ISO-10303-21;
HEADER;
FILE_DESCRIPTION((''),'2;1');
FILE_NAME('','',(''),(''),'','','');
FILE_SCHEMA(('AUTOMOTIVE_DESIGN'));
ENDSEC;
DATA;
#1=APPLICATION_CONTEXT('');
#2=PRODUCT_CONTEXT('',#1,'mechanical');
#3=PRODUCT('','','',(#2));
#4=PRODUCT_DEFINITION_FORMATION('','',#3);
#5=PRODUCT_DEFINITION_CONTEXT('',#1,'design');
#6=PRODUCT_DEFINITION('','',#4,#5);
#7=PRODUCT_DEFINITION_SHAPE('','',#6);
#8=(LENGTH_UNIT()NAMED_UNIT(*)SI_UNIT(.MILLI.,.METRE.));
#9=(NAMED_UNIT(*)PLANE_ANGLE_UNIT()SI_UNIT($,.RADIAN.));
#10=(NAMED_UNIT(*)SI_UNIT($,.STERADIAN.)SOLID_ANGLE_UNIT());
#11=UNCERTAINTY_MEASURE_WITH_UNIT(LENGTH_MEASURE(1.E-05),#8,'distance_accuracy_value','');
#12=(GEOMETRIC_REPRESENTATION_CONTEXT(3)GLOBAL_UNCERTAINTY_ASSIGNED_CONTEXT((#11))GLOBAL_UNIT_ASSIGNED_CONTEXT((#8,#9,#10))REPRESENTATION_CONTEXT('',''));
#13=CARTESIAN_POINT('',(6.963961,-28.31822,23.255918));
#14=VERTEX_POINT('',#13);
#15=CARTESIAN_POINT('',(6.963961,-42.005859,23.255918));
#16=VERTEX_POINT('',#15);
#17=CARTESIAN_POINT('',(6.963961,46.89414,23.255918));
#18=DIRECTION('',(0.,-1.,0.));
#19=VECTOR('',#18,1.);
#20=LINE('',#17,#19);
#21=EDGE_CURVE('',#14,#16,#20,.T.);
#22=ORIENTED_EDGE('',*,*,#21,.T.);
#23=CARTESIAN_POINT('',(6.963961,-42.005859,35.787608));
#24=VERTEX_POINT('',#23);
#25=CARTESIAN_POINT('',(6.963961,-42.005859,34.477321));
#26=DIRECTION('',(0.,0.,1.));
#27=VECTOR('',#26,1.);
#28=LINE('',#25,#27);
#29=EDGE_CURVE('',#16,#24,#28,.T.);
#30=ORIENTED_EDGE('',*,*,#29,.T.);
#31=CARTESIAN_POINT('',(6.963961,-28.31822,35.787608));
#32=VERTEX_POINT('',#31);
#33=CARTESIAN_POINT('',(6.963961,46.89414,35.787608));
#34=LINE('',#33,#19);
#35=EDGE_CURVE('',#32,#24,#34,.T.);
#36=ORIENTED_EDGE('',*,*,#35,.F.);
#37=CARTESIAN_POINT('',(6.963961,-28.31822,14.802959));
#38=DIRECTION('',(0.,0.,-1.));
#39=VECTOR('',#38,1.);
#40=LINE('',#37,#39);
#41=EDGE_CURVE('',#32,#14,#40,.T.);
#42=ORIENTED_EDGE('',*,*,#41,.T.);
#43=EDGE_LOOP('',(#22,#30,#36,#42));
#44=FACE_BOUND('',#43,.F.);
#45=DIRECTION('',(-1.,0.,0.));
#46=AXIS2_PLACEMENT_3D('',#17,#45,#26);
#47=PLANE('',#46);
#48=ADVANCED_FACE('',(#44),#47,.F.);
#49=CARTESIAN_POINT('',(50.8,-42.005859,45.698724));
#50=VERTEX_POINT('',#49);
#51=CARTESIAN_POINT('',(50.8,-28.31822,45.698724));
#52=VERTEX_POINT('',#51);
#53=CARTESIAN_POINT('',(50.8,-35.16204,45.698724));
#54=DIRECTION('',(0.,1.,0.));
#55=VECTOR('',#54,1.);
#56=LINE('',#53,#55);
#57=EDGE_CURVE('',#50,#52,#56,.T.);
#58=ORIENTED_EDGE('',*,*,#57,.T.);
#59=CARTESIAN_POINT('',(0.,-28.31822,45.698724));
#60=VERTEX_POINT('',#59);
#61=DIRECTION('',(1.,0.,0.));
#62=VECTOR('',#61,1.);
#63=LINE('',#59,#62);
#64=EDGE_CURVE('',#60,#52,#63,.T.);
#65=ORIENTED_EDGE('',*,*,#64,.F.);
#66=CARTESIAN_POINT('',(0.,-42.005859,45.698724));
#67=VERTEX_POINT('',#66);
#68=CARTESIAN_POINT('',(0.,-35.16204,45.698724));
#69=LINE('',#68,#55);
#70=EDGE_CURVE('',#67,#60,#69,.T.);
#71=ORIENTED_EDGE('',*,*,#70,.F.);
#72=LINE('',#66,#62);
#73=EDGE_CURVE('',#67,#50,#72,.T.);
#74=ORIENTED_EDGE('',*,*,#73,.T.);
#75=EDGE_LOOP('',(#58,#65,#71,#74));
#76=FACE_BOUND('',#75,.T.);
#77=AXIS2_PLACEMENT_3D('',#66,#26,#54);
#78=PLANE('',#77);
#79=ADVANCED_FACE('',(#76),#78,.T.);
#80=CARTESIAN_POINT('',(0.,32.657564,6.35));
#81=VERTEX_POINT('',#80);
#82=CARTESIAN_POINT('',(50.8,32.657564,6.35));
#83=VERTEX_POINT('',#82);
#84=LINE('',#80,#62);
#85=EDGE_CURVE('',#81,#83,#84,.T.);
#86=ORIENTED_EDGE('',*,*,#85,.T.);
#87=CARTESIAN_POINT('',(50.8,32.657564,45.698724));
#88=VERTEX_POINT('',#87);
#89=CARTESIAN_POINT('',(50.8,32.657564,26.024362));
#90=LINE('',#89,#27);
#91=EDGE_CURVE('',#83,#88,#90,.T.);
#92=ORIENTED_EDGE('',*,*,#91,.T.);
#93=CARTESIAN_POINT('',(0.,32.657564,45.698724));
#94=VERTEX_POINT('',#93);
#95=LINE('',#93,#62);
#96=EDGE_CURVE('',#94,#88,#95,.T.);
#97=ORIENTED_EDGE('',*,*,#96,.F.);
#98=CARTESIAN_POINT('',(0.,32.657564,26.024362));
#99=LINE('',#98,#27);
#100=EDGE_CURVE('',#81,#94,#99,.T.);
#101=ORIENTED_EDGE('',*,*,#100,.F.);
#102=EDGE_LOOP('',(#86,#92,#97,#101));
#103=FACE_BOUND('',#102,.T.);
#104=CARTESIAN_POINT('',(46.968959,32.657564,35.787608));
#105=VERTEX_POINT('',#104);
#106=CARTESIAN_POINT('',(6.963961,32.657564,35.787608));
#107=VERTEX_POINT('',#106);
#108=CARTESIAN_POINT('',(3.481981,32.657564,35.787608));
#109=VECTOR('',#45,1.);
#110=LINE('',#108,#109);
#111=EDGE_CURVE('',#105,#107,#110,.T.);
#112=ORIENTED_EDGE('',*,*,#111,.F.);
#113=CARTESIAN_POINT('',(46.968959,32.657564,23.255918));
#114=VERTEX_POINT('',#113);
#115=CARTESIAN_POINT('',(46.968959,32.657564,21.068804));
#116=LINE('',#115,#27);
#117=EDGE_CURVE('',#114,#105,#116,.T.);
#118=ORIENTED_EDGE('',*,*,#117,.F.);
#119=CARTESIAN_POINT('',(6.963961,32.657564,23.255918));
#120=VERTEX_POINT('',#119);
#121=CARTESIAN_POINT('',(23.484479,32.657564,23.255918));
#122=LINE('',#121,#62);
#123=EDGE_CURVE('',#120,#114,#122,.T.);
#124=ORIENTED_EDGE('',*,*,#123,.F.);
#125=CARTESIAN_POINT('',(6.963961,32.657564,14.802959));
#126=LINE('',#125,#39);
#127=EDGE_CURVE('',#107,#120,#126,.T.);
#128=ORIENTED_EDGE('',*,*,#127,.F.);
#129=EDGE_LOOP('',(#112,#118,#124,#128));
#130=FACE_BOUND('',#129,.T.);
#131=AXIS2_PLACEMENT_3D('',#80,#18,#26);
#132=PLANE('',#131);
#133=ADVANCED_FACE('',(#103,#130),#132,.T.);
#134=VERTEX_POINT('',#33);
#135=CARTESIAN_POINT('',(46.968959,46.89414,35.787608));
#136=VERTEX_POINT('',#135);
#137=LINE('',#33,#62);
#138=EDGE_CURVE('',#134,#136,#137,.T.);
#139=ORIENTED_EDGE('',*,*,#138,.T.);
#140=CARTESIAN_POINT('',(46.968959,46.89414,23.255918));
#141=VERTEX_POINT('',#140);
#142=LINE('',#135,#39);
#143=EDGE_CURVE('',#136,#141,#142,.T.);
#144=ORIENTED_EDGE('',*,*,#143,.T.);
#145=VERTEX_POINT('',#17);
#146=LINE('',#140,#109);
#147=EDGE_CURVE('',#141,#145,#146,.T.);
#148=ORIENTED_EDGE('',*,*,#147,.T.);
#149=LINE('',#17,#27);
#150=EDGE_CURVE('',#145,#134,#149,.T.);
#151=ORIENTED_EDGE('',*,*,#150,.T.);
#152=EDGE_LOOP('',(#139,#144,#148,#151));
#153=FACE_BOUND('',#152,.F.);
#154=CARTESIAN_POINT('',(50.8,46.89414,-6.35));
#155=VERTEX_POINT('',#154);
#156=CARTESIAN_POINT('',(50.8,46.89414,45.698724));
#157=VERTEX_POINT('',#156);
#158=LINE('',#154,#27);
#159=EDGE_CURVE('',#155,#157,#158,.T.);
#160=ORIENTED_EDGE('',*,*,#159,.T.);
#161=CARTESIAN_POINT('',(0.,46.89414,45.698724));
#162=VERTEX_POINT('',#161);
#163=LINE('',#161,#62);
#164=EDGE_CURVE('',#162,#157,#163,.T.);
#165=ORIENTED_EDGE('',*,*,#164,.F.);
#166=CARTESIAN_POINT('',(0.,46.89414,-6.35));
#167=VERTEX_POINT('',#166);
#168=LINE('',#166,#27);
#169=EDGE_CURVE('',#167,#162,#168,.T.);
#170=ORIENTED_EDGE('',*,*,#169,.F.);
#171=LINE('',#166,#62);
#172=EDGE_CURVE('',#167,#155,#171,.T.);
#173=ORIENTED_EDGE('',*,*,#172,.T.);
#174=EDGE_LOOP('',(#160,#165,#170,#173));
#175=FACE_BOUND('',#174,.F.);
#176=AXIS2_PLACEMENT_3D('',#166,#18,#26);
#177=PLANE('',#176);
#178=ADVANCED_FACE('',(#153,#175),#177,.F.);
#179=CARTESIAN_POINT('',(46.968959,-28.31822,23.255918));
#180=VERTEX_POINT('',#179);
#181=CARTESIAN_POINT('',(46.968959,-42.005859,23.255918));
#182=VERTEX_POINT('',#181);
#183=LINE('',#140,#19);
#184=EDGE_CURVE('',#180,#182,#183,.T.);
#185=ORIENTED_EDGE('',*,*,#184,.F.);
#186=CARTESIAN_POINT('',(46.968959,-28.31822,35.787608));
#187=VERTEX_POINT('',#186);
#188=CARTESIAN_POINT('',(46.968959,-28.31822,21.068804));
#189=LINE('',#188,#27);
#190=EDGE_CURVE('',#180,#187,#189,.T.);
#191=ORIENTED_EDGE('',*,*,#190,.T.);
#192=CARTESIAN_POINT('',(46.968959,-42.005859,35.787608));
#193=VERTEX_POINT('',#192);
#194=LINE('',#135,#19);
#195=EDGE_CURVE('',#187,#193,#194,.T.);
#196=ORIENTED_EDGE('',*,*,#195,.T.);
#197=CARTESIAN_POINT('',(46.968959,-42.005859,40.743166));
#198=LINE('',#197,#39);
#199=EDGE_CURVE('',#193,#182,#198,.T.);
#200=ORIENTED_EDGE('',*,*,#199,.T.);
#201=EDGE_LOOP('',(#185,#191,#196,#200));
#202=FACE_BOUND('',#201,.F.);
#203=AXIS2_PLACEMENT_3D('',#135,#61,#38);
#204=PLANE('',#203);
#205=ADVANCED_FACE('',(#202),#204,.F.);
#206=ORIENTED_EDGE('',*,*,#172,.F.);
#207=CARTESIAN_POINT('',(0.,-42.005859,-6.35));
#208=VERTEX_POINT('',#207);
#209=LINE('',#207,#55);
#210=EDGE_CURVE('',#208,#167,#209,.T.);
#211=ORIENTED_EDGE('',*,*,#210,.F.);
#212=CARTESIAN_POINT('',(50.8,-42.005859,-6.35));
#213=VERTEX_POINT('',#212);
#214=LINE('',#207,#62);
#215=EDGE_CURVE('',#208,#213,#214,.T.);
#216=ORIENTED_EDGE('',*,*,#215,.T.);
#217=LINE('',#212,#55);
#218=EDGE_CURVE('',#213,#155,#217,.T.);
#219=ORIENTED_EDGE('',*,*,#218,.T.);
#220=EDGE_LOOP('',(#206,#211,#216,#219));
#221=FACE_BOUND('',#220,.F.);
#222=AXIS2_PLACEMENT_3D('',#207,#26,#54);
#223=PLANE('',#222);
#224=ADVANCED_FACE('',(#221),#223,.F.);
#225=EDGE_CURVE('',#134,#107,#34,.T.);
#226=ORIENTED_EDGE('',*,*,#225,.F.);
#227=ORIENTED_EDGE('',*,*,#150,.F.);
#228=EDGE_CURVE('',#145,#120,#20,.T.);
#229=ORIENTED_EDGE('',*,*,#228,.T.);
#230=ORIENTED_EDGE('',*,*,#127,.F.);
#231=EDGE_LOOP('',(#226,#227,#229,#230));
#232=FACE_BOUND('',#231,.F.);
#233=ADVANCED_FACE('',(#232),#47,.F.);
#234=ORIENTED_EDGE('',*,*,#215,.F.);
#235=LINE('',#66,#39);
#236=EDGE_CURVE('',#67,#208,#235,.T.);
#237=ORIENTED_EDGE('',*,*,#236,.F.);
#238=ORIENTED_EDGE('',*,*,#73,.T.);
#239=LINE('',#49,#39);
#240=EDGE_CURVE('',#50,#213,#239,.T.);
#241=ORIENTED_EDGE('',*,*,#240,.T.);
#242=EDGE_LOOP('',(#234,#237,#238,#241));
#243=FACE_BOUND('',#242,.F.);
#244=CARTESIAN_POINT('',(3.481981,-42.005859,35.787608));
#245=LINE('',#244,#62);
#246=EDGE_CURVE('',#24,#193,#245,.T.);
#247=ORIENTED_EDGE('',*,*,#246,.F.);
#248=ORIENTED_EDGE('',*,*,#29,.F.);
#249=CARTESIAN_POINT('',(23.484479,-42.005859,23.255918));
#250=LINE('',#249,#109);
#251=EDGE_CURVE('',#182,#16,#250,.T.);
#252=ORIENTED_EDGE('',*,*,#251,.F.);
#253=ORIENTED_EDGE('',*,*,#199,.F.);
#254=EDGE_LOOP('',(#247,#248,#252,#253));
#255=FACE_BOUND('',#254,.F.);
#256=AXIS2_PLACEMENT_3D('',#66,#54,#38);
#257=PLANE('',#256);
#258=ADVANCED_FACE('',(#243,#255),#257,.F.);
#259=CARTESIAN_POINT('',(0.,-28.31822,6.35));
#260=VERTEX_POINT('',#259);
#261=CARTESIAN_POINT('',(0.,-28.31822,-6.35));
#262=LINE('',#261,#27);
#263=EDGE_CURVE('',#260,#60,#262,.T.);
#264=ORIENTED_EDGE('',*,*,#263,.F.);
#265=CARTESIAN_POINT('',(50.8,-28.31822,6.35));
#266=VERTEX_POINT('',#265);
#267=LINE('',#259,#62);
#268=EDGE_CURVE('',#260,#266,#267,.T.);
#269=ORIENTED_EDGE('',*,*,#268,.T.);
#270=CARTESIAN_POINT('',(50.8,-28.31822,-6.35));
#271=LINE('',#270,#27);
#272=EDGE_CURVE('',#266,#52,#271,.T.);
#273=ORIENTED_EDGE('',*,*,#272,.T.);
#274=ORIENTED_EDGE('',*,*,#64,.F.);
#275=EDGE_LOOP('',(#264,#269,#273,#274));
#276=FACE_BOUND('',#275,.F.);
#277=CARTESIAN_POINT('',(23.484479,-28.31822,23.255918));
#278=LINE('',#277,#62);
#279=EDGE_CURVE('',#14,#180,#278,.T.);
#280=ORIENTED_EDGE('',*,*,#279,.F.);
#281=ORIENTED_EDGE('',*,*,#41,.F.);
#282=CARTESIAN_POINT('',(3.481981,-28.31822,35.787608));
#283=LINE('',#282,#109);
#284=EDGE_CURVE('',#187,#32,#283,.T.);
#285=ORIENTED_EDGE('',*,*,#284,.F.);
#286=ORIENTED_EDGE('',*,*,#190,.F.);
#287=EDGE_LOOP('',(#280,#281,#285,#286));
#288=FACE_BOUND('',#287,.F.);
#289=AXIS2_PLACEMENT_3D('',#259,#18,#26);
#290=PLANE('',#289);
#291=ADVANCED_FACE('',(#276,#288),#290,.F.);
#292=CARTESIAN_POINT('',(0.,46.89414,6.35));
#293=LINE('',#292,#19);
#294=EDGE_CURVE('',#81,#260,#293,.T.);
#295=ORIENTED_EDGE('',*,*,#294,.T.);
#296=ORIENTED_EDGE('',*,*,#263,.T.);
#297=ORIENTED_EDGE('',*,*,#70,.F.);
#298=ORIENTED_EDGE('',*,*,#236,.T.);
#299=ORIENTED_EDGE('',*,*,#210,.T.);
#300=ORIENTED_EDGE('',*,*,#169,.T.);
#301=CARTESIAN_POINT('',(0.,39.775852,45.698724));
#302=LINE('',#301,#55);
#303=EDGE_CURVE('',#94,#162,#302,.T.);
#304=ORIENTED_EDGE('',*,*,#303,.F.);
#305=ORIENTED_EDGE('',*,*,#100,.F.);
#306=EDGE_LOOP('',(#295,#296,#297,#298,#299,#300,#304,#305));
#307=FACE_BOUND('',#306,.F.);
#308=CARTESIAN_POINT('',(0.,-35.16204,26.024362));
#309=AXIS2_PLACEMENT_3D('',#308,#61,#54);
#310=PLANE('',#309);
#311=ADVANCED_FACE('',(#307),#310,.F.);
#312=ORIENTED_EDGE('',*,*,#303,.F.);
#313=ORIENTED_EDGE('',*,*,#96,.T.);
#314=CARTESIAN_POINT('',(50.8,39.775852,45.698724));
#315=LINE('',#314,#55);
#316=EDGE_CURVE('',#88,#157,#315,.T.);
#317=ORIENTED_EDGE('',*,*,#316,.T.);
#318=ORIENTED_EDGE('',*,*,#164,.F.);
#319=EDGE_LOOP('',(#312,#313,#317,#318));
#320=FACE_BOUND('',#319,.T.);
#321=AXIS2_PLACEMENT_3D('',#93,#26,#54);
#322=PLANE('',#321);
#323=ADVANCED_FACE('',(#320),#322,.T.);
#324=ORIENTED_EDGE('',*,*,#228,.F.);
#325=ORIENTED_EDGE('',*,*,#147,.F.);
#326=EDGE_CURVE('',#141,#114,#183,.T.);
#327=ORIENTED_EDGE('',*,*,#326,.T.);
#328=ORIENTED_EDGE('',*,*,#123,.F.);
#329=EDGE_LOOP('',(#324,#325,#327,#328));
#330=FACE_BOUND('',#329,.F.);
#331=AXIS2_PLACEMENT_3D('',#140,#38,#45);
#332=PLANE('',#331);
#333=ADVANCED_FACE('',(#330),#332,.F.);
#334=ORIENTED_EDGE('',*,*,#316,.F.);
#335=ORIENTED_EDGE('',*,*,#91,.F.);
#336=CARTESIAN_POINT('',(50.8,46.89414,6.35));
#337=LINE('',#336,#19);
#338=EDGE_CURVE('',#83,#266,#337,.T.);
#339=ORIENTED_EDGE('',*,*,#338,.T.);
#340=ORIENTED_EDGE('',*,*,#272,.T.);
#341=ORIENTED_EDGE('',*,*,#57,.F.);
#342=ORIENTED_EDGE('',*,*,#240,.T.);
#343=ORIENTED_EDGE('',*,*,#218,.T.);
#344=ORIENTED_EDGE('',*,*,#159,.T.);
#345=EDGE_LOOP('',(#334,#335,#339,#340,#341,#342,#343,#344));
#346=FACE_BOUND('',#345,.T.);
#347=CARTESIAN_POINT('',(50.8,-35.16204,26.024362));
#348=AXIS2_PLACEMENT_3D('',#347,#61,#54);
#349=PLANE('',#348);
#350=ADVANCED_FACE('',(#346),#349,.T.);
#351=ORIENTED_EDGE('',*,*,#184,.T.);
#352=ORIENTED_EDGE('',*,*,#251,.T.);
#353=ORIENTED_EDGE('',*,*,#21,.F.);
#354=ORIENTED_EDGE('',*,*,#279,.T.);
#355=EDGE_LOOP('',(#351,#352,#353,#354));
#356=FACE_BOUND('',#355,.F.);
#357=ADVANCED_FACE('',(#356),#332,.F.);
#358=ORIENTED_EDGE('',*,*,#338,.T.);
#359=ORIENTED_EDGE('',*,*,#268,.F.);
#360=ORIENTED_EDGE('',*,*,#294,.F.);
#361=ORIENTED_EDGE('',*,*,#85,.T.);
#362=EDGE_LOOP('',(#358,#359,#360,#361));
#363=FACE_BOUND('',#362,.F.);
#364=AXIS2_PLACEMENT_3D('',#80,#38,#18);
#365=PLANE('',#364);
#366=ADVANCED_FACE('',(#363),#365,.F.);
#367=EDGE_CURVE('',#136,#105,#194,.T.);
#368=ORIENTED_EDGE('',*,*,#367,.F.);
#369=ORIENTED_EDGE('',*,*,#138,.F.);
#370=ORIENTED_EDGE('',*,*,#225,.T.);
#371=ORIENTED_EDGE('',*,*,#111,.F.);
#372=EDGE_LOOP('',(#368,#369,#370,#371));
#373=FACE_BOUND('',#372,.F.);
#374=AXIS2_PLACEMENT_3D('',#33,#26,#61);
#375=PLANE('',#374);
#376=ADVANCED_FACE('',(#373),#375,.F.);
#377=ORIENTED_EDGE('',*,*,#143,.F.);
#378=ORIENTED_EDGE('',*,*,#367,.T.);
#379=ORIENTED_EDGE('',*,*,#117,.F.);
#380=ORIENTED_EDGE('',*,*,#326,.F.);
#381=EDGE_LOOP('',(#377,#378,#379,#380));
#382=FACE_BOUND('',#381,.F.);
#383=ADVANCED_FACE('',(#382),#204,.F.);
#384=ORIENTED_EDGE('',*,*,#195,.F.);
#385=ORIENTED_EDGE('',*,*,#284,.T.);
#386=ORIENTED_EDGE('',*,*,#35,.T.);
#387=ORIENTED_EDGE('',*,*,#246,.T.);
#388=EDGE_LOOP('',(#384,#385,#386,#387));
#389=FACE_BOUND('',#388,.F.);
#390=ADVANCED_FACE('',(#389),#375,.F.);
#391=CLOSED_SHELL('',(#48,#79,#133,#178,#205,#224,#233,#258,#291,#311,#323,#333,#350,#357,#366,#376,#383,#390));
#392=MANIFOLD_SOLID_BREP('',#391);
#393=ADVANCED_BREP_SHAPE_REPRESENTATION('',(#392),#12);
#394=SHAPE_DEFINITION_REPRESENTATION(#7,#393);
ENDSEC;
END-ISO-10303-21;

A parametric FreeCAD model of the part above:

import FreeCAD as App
import Part
import Sketcher

V = App.Vector
Q = App.Units.Quantity

doc = App.newDocument("Part")
body = doc.addObject("PartDesign::Body", "Body")

# Sketch on YZ plane
sketch1 = doc.addObject("Sketcher::SketchObject", "Sketch")
body.addObject(sketch1)
sketch1.AttachmentSupport = (doc.YZ_Plane, [""])
sketch1.MapMode = "FlatFace"
sketch1.addGeometry([
    Part.LineSegment(V(-28, 46, 0), V(-42, 46, 0)),  # 0
    Part.LineSegment(V(-42, 46, 0), V(-42, -6, 0)),  # 1
    Part.LineSegment(V(-42, -6, 0), V(47, -6, 0)),  # 2
    Part.LineSegment(V(47, -6, 0), V(47, 46, 0)),  # 3
    Part.LineSegment(V(47, 46, 0), V(33, 46, 0)),  # 4
    Part.LineSegment(V(33, 46, 0), V(33, 6, 0)),  # 5
    Part.LineSegment(V(33, 6, 0), V(-28, 6, 0)),  # 6
    Part.LineSegment(V(-28, 6, 0), V(-28, 46, 0)),  # 7
], False)
sketch1.addConstraint([
    Sketcher.Constraint("Coincident", 0, 2, 1, 1),
    Sketcher.Constraint("Coincident", 1, 2, 2, 1),
    Sketcher.Constraint("Coincident", 2, 2, 3, 1),
    Sketcher.Constraint("Coincident", 3, 2, 4, 1),
    Sketcher.Constraint("Coincident", 4, 2, 5, 1),
    Sketcher.Constraint("Coincident", 5, 2, 6, 1),
    Sketcher.Constraint("Coincident", 6, 2, 7, 1),
    Sketcher.Constraint("Coincident", 7, 2, 0, 1),
    Sketcher.Constraint("Horizontal", 0),
    Sketcher.Constraint("Vertical", 1),
    Sketcher.Constraint("Horizontal", 2),
    Sketcher.Constraint("Vertical", 3),
    Sketcher.Constraint("Horizontal", 4),
    Sketcher.Constraint("Vertical", 5),
    Sketcher.Constraint("Horizontal", 6),
    Sketcher.Constraint("Vertical", 7),
    Sketcher.Constraint("Horizontal", 0, 2, 3, 2),
    Sketcher.Constraint("DistanceX", 2, 1, 2, 2, Q("3.5 in")),
    Sketcher.Constraint("DistanceY", 2, 2, 5, 2, Q("0.5 in")),
    Sketcher.Constraint("DistanceY", 1, 2, -1, 1, Q("0.25 in")),
    Sketcher.Constraint("DistanceX", 0, 2, 0, 1, 13.687639),
    Sketcher.Constraint("DistanceX", 4, 2, 4, 1, 14.236576),
    Sketcher.Constraint("DistanceY", 1, 2, 1, 1, 52.048724),
    Sketcher.Constraint("DistanceX", 0, 2, -1, 1, 42.005859),
])
pad1 = doc.addObject("PartDesign::Pad", "Pad")
body.addObject(pad1)
pad1.Profile = sketch1
pad1.Length = Q("2 in")

# Sketch on XZ plane
sketch2 = doc.addObject("Sketcher::SketchObject", "Sketch001")
body.addObject(sketch2)
sketch2.AttachmentSupport = (doc.XZ_Plane, [""])
sketch2.MapMode = "FlatFace"
sketch2.AttachmentOffset = App.Placement(V(0, 0, -46.89414), App.Rotation())
sketch2.addGeometry([
    Part.LineSegment(V(47, 23, 0), V(7, 23, 0)),
    Part.LineSegment(V(7, 23, 0), V(7, 36, 0)),
    Part.LineSegment(V(7, 36, 0), V(47, 36, 0)),
    Part.LineSegment(V(47, 36, 0), V(47, 23, 0)),
], False)
sketch2.addConstraint([
    Sketcher.Constraint("Coincident", 0, 2, 1, 1),
    Sketcher.Constraint("Coincident", 1, 2, 2, 1),
    Sketcher.Constraint("Coincident", 2, 2, 3, 1),
    Sketcher.Constraint("Coincident", 3, 2, 0, 1),
    Sketcher.Constraint("Horizontal", 0),
    Sketcher.Constraint("Vertical", 1),
    Sketcher.Constraint("Horizontal", 2),
    Sketcher.Constraint("Vertical", 3),
    Sketcher.Constraint("DistanceX", 0, 2, 0, 1, Q("1.5749999 in")),
    Sketcher.Constraint("DistanceY", 1, 1, 1, 2, 12.53169),
    Sketcher.Constraint("DistanceX", -1, 1, 0, 2, 6.963961),
    Sketcher.Constraint("DistanceY", -1, 1, 0, 2, 23.255918),
])
pocket1 = doc.addObject("PartDesign::Pocket", "Pocket")
body.addObject(pocket1)
pocket1.Profile = sketch2
pocket1.Type = "ThroughAll"
pocket1.Reversed = True

doc.recompute()
